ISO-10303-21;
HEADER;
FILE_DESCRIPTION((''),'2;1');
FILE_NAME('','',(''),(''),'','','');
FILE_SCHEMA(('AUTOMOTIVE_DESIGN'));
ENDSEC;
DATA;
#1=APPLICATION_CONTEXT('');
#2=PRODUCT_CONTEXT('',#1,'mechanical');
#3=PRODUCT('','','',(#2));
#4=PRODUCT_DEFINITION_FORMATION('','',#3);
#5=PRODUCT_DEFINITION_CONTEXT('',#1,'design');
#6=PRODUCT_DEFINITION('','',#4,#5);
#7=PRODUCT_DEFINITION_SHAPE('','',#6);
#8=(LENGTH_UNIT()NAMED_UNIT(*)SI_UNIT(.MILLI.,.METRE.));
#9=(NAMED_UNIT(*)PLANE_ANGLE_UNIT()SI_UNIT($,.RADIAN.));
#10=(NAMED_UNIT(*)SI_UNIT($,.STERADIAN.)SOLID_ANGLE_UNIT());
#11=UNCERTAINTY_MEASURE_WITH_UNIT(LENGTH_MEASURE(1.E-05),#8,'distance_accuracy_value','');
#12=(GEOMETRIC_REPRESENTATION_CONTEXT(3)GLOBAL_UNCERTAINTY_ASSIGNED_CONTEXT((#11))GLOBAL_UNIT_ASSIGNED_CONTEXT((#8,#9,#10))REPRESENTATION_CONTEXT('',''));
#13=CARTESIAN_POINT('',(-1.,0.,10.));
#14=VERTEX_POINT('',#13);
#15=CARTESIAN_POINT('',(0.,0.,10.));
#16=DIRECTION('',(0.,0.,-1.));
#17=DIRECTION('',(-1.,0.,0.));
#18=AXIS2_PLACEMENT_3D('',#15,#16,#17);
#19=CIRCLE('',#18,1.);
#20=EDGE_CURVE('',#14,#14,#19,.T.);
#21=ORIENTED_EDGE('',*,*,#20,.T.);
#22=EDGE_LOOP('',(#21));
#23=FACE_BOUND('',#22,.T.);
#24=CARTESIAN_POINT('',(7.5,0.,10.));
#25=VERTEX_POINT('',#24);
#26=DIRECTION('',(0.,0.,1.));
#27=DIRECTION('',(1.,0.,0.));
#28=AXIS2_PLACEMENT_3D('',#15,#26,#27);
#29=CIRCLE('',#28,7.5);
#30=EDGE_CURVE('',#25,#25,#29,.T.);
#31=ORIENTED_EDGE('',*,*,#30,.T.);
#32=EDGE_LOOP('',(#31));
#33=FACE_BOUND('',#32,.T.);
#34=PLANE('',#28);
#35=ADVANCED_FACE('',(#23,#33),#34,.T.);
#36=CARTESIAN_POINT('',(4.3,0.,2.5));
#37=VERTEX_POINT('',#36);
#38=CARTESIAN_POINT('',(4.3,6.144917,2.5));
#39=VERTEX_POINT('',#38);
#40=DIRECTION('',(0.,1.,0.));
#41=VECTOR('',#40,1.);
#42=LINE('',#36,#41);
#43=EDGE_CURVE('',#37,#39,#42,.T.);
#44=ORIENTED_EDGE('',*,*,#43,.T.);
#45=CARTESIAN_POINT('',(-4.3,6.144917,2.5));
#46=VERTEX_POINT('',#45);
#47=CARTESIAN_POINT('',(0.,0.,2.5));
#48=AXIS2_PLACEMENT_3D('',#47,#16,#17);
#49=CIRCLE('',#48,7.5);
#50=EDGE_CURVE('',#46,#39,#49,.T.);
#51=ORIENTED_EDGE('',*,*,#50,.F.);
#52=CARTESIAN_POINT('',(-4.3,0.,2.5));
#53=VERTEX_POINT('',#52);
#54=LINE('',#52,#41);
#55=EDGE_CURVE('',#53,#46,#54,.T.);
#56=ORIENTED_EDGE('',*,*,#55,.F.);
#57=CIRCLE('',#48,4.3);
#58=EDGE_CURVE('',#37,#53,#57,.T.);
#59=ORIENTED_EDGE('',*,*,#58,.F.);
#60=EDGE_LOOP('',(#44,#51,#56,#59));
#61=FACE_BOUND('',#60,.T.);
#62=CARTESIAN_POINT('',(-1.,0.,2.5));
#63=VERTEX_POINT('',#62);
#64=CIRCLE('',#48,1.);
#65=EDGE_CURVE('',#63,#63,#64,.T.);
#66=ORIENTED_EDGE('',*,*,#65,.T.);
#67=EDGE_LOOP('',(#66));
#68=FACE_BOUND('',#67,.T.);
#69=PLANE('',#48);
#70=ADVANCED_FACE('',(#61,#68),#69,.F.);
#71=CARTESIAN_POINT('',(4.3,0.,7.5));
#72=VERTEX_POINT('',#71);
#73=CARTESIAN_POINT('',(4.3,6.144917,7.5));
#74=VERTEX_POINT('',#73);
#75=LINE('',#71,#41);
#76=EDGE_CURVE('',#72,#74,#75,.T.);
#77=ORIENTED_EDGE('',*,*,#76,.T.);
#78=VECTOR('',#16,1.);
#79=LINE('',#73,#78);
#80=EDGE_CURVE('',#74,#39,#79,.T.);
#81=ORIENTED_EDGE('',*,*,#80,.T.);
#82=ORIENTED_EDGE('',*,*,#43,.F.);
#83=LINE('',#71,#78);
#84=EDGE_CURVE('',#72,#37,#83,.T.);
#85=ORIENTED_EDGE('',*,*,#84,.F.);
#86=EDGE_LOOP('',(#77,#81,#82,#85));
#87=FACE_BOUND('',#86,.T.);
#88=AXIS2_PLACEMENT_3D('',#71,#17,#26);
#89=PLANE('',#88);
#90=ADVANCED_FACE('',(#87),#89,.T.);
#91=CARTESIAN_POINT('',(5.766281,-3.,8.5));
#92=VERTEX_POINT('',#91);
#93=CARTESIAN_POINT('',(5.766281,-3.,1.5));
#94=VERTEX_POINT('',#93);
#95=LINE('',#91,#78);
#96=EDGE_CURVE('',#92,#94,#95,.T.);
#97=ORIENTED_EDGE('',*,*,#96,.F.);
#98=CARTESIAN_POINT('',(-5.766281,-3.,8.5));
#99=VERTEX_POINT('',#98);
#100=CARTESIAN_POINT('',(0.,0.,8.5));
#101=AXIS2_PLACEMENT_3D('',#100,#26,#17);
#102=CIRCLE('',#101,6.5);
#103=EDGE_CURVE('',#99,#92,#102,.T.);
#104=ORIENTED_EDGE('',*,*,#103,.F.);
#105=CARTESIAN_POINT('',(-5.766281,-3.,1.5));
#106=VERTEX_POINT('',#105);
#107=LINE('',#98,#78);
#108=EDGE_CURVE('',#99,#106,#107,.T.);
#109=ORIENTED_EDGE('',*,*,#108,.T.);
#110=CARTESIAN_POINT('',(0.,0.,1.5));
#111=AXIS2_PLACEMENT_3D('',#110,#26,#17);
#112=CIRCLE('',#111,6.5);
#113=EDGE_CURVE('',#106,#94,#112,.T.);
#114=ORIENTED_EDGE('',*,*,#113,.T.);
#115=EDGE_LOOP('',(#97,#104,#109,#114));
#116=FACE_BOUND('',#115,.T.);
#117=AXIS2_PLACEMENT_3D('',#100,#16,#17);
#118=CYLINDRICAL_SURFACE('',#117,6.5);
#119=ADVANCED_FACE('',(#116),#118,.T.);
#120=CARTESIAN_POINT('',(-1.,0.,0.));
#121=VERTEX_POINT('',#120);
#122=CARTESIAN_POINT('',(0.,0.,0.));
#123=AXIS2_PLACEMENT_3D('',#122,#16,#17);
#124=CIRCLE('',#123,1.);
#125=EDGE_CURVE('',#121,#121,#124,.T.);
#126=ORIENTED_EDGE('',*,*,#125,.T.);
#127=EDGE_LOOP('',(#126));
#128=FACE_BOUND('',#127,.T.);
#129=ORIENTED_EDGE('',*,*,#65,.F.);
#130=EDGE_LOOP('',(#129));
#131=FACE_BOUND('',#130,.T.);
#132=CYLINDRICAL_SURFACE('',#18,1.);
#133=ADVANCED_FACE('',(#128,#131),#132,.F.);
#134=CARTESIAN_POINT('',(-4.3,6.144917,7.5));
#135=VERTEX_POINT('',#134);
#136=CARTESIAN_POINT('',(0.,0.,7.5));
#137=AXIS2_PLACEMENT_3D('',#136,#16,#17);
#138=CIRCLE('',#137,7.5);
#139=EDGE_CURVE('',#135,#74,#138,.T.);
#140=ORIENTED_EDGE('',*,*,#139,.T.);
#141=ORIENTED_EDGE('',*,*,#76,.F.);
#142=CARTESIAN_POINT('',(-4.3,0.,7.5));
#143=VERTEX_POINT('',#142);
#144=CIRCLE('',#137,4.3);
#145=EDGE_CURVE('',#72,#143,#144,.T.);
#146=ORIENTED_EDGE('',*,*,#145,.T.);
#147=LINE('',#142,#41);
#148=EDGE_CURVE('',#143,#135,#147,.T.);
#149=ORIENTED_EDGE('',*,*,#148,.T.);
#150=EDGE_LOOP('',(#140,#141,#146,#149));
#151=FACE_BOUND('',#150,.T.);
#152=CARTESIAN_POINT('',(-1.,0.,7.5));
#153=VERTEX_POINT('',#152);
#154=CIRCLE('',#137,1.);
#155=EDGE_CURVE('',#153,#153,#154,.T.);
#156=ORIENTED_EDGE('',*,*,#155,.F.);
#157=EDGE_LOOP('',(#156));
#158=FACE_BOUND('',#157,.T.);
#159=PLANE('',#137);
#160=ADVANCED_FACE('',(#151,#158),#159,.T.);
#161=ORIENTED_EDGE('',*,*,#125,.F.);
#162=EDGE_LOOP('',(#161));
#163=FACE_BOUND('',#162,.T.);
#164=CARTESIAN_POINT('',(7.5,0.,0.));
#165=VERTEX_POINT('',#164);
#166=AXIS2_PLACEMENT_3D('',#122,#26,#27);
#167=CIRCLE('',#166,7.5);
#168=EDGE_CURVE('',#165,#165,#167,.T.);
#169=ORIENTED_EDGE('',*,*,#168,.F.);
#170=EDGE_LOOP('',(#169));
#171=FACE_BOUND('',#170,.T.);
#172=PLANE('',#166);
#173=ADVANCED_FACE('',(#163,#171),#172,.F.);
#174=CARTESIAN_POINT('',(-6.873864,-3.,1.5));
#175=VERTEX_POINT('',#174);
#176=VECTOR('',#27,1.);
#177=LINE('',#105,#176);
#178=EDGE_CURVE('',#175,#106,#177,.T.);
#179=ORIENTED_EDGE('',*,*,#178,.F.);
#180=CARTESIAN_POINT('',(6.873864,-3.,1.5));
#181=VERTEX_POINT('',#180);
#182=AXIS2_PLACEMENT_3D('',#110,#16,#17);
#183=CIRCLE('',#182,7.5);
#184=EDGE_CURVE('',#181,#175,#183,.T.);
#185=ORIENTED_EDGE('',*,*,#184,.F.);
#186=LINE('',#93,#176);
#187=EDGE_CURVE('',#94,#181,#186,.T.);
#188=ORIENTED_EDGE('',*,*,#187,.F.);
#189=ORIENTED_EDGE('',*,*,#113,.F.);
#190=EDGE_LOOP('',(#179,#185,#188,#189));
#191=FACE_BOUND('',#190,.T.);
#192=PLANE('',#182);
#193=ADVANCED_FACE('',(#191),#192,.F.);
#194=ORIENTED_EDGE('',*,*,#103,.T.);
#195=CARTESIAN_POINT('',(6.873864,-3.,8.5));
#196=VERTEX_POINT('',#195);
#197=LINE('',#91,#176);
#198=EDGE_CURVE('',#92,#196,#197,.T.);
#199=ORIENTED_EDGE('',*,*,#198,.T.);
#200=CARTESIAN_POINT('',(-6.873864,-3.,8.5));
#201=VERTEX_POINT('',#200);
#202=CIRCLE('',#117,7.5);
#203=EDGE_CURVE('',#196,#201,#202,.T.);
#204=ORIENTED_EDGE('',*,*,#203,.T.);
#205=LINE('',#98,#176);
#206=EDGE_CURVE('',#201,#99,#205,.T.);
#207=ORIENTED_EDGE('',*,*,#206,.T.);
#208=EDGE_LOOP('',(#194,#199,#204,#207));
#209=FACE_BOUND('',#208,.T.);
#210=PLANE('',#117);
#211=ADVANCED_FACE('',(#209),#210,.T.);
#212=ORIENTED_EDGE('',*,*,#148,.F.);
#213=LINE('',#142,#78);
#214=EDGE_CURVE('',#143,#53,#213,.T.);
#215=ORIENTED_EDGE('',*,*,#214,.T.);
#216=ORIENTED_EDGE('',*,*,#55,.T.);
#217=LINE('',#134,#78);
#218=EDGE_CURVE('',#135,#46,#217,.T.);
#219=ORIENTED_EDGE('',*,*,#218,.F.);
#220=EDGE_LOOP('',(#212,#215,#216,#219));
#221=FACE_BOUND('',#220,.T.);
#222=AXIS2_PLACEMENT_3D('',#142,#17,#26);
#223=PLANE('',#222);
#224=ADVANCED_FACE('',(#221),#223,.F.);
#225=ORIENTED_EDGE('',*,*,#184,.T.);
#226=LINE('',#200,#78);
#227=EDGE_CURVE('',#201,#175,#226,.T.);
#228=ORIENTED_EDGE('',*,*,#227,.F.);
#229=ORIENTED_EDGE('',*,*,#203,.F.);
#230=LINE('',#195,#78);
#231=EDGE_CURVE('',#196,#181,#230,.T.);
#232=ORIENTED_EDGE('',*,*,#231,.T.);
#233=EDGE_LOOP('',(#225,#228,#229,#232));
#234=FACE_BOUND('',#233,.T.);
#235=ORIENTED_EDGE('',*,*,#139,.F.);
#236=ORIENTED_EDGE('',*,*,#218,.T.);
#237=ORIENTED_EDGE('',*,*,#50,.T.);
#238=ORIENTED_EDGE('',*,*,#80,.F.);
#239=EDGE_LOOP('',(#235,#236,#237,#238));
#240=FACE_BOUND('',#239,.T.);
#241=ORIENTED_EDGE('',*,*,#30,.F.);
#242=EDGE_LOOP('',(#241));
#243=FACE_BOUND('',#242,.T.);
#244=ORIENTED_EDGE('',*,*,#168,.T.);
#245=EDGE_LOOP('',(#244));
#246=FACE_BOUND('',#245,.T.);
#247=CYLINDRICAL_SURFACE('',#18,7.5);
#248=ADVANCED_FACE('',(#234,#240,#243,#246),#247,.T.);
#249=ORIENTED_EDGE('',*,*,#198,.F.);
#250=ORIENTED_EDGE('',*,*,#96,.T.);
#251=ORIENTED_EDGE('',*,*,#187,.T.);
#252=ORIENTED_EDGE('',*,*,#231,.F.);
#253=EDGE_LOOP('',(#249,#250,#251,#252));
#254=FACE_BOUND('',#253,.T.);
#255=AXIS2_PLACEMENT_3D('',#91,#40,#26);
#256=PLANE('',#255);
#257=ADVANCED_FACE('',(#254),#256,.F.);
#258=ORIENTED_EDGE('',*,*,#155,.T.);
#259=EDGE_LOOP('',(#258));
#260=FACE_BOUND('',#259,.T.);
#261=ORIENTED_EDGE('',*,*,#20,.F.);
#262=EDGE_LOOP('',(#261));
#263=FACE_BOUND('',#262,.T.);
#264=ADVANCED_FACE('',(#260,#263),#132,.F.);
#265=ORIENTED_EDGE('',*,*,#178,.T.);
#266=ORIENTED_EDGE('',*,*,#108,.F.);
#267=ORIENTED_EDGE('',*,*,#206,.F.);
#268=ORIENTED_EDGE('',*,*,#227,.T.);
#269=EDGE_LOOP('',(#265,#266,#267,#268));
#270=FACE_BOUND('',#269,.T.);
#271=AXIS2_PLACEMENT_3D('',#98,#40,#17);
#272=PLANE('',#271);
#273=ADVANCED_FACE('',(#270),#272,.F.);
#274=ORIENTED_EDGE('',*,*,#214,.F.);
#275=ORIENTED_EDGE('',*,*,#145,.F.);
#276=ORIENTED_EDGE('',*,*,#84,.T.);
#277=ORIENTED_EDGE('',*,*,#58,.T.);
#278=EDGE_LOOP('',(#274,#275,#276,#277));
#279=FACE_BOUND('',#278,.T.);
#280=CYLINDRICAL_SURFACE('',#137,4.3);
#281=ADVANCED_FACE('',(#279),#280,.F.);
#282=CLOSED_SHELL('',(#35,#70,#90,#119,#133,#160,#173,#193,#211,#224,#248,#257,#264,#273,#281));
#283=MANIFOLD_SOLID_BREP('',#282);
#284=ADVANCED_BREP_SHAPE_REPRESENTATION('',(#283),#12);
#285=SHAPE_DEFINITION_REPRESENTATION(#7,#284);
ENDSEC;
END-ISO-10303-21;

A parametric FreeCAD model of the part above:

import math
import FreeCAD as App
import Part
import Sketcher

doc = App.newDocument("Part")
body = doc.addObject("PartDesign::Body", "Body")

# Sketch on XY plane
sketch1 = doc.addObject("Sketcher::SketchObject", "Sketch")
body.addObject(sketch1)
sketch1.AttachmentSupport = (doc.XY_Plane, [""])
sketch1.MapMode = "FlatFace"
sketch1.addGeometry(Part.Circle(App.Vector(0, 0, 0), App.Vector(0, 0, 1), 8), False)
sketch1.addConstraint(Sketcher.Constraint("Coincident", 0, 3, -1, 1))
sketch1.addConstraint(Sketcher.Constraint("Diameter", 0, 15.0))
pad1 = doc.addObject("PartDesign::Pad", "Pad")
body.addObject(pad1)
pad1.Profile = sketch1
pad1.Length = 10

# Sketch on XY plane
sketch2 = doc.addObject("Sketcher::SketchObject", "Sketch001")
body.addObject(sketch2)
sketch2.AttachmentSupport = (doc.XY_Plane, [""])
sketch2.MapMode = "FlatFace"
sketch2.AttachmentOffset = App.Placement(App.Vector(0, 0, 2.5), App.Rotation())
sketch2.addGeometry(Part.LineSegment(App.Vector(4.3, 6.1, 0), App.Vector(4.3, 0, 0)), False)
sketch2.addGeometry(Part.ArcOfCircle(Part.Circle(App.Vector(0, 0, 0), App.Vector(0, 0, 1), 4.3), math.radians(180), math.radians(360)), False)
sketch2.addGeometry(Part.LineSegment(App.Vector(-4.3, 0, 0), App.Vector(-4.3, 6.1, 0)), False)
sketch2.addGeometry(Part.ArcOfCircle(Part.Circle(App.Vector(0, 0, 0), App.Vector(0, 0, 1), 7.5), math.radians(55), math.radians(125)), False)
sketch2.addConstraint(Sketcher.Constraint("Tangent", 0, 2, 1, 2))
sketch2.addConstraint(Sketcher.Constraint("Tangent", 1, 1, 2, 1))
sketch2.addConstraint(Sketcher.Constraint("Coincident", 2, 2, 3, 2))
sketch2.addConstraint(Sketcher.Constraint("Coincident", 3, 1, 0, 1))
sketch2.addConstraint(Sketcher.Constraint("Vertical", 0))
sketch2.addConstraint(Sketcher.Constraint("Vertical", 2))
sketch2.addConstraint(Sketcher.Constraint("Coincident", 1, 3, -1, 1))
sketch2.addConstraint(Sketcher.Constraint("Coincident", 3, 3, -1, 1))
sketch2.addConstraint(Sketcher.Constraint("Radius", 1, 4.3))
sketch2.addConstraint(Sketcher.Constraint("Radius", 3, 7.5))
pocket1 = doc.addObject("PartDesign::Pocket", "Pocket")
body.addObject(pocket1)
pocket1.Profile = sketch2
pocket1.Length = 5
pocket1.Reversed = True

# Sketch on XY plane
sketch3 = doc.addObject("Sketcher::SketchObject", "Sketch002")
body.addObject(sketch3)
sketch3.AttachmentSupport = (doc.XY_Plane, [""])
sketch3.MapMode = "FlatFace"
sketch3.addGeometry(Part.Circle(App.Vector(0, 0, 0), App.Vector(0, 0, 1), 1), False)
sketch3.addConstraint(Sketcher.Constraint("Coincident", 0, 3, -1, 1))
sketch3.addConstraint(Sketcher.Constraint("Diameter", 0, 2.0))
pocket2 = doc.addObject("PartDesign::Pocket", "Pocket001")
body.addObject(pocket2)
pocket2.Profile = sketch3
pocket2.Type = "ThroughAll"
pocket2.Reversed = True

# Sketch on XY plane
sketch4 = doc.addObject("Sketcher::SketchObject", "Sketch003")
body.addObject(sketch4)
sketch4.AttachmentSupport = (doc.XY_Plane, [""])
sketch4.MapMode = "FlatFace"
sketch4.AttachmentOffset = App.Placement(App.Vector(0, 0, 1.5), App.Rotation())
sketch4.addGeometry(Part.LineSegment(App.Vector(5.8, -3, 0), App.Vector(6.9, -3, 0)), False)
sketch4.addGeometry(Part.ArcOfCircle(Part.Circle(App.Vector(0, 0, 0), App.Vector(0, 0, 1), 7.5), math.radians(-156), math.radians(-24)), False)
sketch4.addGeometry(Part.LineSegment(App.Vector(-6.9, -3, 0), App.Vector(-5.8, -3, 0)), False)
sketch4.addGeometry(Part.ArcOfCircle(Part.Circle(App.Vector(0, 0, 0), App.Vector(0, 0, 1), 6.5), math.radians(-153), math.radians(-27)), False)
sketch4.addConstraint(Sketcher.Constraint("Coincident", 0, 2, 1, 2))
sketch4.addConstraint(Sketcher.Constraint("Coincident", 1, 1, 2, 1))
sketch4.addConstraint(Sketcher.Constraint("Coincident", 2, 2, 3, 1))
sketch4.addConstraint(Sketcher.Constraint("Coincident", 3, 2, 0, 1))
sketch4.addConstraint(Sketcher.Constraint("Horizontal", 0))
sketch4.addConstraint(Sketcher.Constraint("Horizontal", 2))
sketch4.addConstraint(Sketcher.Constraint("Coincident", 1, 3, -1, 1))
sketch4.addConstraint(Sketcher.Constraint("Coincident", 3, 3, -1, 1))
sketch4.addConstraint(Sketcher.Constraint("Horizontal", 0, 2, 1, 1))
sketch4.addConstraint(Sketcher.Constraint("Radius", 1, 7.5))
sketch4.addConstraint(Sketcher.Constraint("Radius", 3, 6.5))
sketch4.addConstraint(Sketcher.Constraint("DistanceY", 0, 2, -1, 1, 3.0))
pocket3 = doc.addObject("PartDesign::Pocket", "Pocket002")
body.addObject(pocket3)
pocket3.Profile = sketch4
pocket3.Length = 7
pocket3.Reversed = True

doc.recompute()
